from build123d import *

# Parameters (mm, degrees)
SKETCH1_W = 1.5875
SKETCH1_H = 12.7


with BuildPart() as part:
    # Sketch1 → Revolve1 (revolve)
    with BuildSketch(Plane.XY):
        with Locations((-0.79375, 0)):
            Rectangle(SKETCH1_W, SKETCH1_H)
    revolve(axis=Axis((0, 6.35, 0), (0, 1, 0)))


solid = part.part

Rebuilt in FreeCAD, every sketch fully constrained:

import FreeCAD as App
import Part
import Sketcher
Q = App.Units.Quantity


def add_polygon(sketch, points):
    """Adds a closed chain of lines whose ends are joined by coincident constraints."""
    first, n = sketch.GeometryCount, len(points)
    for a, b in zip(points, points[1:] + points[:1]):
        sketch.addGeometry(Part.LineSegment(App.Vector(*a, 0), App.Vector(*b, 0)), False)
    for i in range(n):
        sketch.addConstraint(Sketcher.Constraint("Coincident", first + i, 2, first + (i + 1) % n, 1))

doc = App.newDocument("Part")
body = doc.addObject("PartDesign::Body", "Body")

# Sketch on XY plane
sketch1 = body.newObject("Sketcher::SketchObject", "Sketch")
sketch1.AttachmentSupport = (doc.getObject("XY_Plane"), [""])
sketch1.MapMode = "FlatFace"
add_polygon(sketch1, [(-1.6, 6.3), (-1.6, -6.3), (0, -6.3), (0, 6.3)])  # lines 0-3
sketch1.addConstraint([
    Sketcher.Constraint("Vertical", 0),
    Sketcher.Constraint("Horizontal", 1),
    Sketcher.Constraint("Vertical", 2),
    Sketcher.Constraint("Horizontal", 3),
    Sketcher.Constraint("Symmetric", 1, 2, 2, 2, -1, 1),
    Sketcher.Constraint("DistanceY", 0, 2, 0, 1, Q("0.5 in")),
    Sketcher.Constraint("DistanceX", 1, 1, 1, 2, Q("0.0625 in")),
])
revolution = body.newObject("PartDesign::Revolution", "Revolution")
revolution.Profile = sketch1
revolution.ReferenceAxis = (sketch1, ["V_Axis"])
revolution.Angle = 360

doc.recompute()
